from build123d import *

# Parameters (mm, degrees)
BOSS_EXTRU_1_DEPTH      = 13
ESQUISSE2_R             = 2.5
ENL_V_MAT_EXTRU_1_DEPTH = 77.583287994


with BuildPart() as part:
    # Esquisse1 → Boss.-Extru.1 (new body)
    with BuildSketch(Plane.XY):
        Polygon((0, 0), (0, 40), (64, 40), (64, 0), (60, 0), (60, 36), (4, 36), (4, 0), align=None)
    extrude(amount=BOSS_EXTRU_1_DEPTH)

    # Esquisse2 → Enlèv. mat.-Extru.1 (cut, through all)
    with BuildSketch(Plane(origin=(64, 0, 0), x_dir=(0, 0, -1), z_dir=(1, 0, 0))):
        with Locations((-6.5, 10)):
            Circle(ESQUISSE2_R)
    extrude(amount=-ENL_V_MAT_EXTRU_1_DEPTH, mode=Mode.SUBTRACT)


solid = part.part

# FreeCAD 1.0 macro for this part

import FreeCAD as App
import Part
import Sketcher


def add_polygon(sketch, points):
    """Adds a closed chain of lines whose ends are joined by coincident constraints."""
    first, n = sketch.GeometryCount, len(points)
    for a, b in zip(points, points[1:] + points[:1]):
        sketch.addGeometry(Part.LineSegment(App.Vector(*a, 0), App.Vector(*b, 0)), False)
    for i in range(n):
        sketch.addConstraint(Sketcher.Constraint("Coincident", first + i, 2, first + (i + 1) % n, 1))

doc = App.newDocument("Part")
body = doc.addObject("PartDesign::Body", "Body")

sketch1 = body.newObject("Sketcher::SketchObject", "Sketch")
sketch1.AttachmentSupport = (doc.getObject("XY_Plane"), [""])
sketch1.MapMode = "FlatFace"
add_polygon(sketch1, [(0, 40), (0, 0), (4, 0), (4, 36), (60, 36), (60, 0), (64, 0), (64, 40)])
sketch1.addConstraint([
    Sketcher.Constraint("Vertical", 0),
    Sketcher.Constraint("Horizontal", 1),
    Sketcher.Constraint("Vertical", 2),
    Sketcher.Constraint("Horizontal", 3),
    Sketcher.Constraint("Vertical", 4),
    Sketcher.Constraint("Horizontal", 5),
    Sketcher.Constraint("Vertical", 6),
    Sketcher.Constraint("Horizontal", 7),
    Sketcher.Constraint("Coincident", 0, 2, -1, 1),
    Sketcher.Constraint("PointOnObject", 4, 2, -1),
    Sketcher.Constraint("Equal", 1, 5),
    Sketcher.Constraint("DistanceX", 1, 1, 1, 2, 4.0),
    Sketcher.Constraint("DistanceX", 3, 1, 3, 2, 56.0),
    Sketcher.Constraint("DistanceY", 0, 2, 0, 1, 40.0),
    Sketcher.Constraint("DistanceY", 2, 1, 2, 2, 36.0),
])
pad1 = body.newObject("PartDesign::Pad", "Pad")
pad1.Profile = sketch1
pad1.Length = 13

sketch2 = body.newObject("Sketcher::SketchObject", "Sketch001")
sketch2.AttachmentSupport = (doc.getObject("YZ_Plane"), [""])
sketch2.MapMode = "FlatFace"
sketch2.AttachmentOffset = App.Placement(App.Vector(0, 0, 64), App.Rotation())
sketch2.addGeometry(Part.Circle(App.Vector(10, 6.5, 0), App.Vector(0, 0, 1), 2.5), False)
sketch2.addConstraint([
    Sketcher.Constraint("Diameter", 0, 5.0),
    Sketcher.Constraint("DistanceX", -1, 1, 0, 3, 10.0),
    Sketcher.Constraint("DistanceY", -1, 1, 0, 3, 6.5),
])
pocket1 = body.newObject("PartDesign::Pocket", "Pocket")
pocket1.Profile = sketch2
pocket1.Type = "ThroughAll"

doc.recompute()
